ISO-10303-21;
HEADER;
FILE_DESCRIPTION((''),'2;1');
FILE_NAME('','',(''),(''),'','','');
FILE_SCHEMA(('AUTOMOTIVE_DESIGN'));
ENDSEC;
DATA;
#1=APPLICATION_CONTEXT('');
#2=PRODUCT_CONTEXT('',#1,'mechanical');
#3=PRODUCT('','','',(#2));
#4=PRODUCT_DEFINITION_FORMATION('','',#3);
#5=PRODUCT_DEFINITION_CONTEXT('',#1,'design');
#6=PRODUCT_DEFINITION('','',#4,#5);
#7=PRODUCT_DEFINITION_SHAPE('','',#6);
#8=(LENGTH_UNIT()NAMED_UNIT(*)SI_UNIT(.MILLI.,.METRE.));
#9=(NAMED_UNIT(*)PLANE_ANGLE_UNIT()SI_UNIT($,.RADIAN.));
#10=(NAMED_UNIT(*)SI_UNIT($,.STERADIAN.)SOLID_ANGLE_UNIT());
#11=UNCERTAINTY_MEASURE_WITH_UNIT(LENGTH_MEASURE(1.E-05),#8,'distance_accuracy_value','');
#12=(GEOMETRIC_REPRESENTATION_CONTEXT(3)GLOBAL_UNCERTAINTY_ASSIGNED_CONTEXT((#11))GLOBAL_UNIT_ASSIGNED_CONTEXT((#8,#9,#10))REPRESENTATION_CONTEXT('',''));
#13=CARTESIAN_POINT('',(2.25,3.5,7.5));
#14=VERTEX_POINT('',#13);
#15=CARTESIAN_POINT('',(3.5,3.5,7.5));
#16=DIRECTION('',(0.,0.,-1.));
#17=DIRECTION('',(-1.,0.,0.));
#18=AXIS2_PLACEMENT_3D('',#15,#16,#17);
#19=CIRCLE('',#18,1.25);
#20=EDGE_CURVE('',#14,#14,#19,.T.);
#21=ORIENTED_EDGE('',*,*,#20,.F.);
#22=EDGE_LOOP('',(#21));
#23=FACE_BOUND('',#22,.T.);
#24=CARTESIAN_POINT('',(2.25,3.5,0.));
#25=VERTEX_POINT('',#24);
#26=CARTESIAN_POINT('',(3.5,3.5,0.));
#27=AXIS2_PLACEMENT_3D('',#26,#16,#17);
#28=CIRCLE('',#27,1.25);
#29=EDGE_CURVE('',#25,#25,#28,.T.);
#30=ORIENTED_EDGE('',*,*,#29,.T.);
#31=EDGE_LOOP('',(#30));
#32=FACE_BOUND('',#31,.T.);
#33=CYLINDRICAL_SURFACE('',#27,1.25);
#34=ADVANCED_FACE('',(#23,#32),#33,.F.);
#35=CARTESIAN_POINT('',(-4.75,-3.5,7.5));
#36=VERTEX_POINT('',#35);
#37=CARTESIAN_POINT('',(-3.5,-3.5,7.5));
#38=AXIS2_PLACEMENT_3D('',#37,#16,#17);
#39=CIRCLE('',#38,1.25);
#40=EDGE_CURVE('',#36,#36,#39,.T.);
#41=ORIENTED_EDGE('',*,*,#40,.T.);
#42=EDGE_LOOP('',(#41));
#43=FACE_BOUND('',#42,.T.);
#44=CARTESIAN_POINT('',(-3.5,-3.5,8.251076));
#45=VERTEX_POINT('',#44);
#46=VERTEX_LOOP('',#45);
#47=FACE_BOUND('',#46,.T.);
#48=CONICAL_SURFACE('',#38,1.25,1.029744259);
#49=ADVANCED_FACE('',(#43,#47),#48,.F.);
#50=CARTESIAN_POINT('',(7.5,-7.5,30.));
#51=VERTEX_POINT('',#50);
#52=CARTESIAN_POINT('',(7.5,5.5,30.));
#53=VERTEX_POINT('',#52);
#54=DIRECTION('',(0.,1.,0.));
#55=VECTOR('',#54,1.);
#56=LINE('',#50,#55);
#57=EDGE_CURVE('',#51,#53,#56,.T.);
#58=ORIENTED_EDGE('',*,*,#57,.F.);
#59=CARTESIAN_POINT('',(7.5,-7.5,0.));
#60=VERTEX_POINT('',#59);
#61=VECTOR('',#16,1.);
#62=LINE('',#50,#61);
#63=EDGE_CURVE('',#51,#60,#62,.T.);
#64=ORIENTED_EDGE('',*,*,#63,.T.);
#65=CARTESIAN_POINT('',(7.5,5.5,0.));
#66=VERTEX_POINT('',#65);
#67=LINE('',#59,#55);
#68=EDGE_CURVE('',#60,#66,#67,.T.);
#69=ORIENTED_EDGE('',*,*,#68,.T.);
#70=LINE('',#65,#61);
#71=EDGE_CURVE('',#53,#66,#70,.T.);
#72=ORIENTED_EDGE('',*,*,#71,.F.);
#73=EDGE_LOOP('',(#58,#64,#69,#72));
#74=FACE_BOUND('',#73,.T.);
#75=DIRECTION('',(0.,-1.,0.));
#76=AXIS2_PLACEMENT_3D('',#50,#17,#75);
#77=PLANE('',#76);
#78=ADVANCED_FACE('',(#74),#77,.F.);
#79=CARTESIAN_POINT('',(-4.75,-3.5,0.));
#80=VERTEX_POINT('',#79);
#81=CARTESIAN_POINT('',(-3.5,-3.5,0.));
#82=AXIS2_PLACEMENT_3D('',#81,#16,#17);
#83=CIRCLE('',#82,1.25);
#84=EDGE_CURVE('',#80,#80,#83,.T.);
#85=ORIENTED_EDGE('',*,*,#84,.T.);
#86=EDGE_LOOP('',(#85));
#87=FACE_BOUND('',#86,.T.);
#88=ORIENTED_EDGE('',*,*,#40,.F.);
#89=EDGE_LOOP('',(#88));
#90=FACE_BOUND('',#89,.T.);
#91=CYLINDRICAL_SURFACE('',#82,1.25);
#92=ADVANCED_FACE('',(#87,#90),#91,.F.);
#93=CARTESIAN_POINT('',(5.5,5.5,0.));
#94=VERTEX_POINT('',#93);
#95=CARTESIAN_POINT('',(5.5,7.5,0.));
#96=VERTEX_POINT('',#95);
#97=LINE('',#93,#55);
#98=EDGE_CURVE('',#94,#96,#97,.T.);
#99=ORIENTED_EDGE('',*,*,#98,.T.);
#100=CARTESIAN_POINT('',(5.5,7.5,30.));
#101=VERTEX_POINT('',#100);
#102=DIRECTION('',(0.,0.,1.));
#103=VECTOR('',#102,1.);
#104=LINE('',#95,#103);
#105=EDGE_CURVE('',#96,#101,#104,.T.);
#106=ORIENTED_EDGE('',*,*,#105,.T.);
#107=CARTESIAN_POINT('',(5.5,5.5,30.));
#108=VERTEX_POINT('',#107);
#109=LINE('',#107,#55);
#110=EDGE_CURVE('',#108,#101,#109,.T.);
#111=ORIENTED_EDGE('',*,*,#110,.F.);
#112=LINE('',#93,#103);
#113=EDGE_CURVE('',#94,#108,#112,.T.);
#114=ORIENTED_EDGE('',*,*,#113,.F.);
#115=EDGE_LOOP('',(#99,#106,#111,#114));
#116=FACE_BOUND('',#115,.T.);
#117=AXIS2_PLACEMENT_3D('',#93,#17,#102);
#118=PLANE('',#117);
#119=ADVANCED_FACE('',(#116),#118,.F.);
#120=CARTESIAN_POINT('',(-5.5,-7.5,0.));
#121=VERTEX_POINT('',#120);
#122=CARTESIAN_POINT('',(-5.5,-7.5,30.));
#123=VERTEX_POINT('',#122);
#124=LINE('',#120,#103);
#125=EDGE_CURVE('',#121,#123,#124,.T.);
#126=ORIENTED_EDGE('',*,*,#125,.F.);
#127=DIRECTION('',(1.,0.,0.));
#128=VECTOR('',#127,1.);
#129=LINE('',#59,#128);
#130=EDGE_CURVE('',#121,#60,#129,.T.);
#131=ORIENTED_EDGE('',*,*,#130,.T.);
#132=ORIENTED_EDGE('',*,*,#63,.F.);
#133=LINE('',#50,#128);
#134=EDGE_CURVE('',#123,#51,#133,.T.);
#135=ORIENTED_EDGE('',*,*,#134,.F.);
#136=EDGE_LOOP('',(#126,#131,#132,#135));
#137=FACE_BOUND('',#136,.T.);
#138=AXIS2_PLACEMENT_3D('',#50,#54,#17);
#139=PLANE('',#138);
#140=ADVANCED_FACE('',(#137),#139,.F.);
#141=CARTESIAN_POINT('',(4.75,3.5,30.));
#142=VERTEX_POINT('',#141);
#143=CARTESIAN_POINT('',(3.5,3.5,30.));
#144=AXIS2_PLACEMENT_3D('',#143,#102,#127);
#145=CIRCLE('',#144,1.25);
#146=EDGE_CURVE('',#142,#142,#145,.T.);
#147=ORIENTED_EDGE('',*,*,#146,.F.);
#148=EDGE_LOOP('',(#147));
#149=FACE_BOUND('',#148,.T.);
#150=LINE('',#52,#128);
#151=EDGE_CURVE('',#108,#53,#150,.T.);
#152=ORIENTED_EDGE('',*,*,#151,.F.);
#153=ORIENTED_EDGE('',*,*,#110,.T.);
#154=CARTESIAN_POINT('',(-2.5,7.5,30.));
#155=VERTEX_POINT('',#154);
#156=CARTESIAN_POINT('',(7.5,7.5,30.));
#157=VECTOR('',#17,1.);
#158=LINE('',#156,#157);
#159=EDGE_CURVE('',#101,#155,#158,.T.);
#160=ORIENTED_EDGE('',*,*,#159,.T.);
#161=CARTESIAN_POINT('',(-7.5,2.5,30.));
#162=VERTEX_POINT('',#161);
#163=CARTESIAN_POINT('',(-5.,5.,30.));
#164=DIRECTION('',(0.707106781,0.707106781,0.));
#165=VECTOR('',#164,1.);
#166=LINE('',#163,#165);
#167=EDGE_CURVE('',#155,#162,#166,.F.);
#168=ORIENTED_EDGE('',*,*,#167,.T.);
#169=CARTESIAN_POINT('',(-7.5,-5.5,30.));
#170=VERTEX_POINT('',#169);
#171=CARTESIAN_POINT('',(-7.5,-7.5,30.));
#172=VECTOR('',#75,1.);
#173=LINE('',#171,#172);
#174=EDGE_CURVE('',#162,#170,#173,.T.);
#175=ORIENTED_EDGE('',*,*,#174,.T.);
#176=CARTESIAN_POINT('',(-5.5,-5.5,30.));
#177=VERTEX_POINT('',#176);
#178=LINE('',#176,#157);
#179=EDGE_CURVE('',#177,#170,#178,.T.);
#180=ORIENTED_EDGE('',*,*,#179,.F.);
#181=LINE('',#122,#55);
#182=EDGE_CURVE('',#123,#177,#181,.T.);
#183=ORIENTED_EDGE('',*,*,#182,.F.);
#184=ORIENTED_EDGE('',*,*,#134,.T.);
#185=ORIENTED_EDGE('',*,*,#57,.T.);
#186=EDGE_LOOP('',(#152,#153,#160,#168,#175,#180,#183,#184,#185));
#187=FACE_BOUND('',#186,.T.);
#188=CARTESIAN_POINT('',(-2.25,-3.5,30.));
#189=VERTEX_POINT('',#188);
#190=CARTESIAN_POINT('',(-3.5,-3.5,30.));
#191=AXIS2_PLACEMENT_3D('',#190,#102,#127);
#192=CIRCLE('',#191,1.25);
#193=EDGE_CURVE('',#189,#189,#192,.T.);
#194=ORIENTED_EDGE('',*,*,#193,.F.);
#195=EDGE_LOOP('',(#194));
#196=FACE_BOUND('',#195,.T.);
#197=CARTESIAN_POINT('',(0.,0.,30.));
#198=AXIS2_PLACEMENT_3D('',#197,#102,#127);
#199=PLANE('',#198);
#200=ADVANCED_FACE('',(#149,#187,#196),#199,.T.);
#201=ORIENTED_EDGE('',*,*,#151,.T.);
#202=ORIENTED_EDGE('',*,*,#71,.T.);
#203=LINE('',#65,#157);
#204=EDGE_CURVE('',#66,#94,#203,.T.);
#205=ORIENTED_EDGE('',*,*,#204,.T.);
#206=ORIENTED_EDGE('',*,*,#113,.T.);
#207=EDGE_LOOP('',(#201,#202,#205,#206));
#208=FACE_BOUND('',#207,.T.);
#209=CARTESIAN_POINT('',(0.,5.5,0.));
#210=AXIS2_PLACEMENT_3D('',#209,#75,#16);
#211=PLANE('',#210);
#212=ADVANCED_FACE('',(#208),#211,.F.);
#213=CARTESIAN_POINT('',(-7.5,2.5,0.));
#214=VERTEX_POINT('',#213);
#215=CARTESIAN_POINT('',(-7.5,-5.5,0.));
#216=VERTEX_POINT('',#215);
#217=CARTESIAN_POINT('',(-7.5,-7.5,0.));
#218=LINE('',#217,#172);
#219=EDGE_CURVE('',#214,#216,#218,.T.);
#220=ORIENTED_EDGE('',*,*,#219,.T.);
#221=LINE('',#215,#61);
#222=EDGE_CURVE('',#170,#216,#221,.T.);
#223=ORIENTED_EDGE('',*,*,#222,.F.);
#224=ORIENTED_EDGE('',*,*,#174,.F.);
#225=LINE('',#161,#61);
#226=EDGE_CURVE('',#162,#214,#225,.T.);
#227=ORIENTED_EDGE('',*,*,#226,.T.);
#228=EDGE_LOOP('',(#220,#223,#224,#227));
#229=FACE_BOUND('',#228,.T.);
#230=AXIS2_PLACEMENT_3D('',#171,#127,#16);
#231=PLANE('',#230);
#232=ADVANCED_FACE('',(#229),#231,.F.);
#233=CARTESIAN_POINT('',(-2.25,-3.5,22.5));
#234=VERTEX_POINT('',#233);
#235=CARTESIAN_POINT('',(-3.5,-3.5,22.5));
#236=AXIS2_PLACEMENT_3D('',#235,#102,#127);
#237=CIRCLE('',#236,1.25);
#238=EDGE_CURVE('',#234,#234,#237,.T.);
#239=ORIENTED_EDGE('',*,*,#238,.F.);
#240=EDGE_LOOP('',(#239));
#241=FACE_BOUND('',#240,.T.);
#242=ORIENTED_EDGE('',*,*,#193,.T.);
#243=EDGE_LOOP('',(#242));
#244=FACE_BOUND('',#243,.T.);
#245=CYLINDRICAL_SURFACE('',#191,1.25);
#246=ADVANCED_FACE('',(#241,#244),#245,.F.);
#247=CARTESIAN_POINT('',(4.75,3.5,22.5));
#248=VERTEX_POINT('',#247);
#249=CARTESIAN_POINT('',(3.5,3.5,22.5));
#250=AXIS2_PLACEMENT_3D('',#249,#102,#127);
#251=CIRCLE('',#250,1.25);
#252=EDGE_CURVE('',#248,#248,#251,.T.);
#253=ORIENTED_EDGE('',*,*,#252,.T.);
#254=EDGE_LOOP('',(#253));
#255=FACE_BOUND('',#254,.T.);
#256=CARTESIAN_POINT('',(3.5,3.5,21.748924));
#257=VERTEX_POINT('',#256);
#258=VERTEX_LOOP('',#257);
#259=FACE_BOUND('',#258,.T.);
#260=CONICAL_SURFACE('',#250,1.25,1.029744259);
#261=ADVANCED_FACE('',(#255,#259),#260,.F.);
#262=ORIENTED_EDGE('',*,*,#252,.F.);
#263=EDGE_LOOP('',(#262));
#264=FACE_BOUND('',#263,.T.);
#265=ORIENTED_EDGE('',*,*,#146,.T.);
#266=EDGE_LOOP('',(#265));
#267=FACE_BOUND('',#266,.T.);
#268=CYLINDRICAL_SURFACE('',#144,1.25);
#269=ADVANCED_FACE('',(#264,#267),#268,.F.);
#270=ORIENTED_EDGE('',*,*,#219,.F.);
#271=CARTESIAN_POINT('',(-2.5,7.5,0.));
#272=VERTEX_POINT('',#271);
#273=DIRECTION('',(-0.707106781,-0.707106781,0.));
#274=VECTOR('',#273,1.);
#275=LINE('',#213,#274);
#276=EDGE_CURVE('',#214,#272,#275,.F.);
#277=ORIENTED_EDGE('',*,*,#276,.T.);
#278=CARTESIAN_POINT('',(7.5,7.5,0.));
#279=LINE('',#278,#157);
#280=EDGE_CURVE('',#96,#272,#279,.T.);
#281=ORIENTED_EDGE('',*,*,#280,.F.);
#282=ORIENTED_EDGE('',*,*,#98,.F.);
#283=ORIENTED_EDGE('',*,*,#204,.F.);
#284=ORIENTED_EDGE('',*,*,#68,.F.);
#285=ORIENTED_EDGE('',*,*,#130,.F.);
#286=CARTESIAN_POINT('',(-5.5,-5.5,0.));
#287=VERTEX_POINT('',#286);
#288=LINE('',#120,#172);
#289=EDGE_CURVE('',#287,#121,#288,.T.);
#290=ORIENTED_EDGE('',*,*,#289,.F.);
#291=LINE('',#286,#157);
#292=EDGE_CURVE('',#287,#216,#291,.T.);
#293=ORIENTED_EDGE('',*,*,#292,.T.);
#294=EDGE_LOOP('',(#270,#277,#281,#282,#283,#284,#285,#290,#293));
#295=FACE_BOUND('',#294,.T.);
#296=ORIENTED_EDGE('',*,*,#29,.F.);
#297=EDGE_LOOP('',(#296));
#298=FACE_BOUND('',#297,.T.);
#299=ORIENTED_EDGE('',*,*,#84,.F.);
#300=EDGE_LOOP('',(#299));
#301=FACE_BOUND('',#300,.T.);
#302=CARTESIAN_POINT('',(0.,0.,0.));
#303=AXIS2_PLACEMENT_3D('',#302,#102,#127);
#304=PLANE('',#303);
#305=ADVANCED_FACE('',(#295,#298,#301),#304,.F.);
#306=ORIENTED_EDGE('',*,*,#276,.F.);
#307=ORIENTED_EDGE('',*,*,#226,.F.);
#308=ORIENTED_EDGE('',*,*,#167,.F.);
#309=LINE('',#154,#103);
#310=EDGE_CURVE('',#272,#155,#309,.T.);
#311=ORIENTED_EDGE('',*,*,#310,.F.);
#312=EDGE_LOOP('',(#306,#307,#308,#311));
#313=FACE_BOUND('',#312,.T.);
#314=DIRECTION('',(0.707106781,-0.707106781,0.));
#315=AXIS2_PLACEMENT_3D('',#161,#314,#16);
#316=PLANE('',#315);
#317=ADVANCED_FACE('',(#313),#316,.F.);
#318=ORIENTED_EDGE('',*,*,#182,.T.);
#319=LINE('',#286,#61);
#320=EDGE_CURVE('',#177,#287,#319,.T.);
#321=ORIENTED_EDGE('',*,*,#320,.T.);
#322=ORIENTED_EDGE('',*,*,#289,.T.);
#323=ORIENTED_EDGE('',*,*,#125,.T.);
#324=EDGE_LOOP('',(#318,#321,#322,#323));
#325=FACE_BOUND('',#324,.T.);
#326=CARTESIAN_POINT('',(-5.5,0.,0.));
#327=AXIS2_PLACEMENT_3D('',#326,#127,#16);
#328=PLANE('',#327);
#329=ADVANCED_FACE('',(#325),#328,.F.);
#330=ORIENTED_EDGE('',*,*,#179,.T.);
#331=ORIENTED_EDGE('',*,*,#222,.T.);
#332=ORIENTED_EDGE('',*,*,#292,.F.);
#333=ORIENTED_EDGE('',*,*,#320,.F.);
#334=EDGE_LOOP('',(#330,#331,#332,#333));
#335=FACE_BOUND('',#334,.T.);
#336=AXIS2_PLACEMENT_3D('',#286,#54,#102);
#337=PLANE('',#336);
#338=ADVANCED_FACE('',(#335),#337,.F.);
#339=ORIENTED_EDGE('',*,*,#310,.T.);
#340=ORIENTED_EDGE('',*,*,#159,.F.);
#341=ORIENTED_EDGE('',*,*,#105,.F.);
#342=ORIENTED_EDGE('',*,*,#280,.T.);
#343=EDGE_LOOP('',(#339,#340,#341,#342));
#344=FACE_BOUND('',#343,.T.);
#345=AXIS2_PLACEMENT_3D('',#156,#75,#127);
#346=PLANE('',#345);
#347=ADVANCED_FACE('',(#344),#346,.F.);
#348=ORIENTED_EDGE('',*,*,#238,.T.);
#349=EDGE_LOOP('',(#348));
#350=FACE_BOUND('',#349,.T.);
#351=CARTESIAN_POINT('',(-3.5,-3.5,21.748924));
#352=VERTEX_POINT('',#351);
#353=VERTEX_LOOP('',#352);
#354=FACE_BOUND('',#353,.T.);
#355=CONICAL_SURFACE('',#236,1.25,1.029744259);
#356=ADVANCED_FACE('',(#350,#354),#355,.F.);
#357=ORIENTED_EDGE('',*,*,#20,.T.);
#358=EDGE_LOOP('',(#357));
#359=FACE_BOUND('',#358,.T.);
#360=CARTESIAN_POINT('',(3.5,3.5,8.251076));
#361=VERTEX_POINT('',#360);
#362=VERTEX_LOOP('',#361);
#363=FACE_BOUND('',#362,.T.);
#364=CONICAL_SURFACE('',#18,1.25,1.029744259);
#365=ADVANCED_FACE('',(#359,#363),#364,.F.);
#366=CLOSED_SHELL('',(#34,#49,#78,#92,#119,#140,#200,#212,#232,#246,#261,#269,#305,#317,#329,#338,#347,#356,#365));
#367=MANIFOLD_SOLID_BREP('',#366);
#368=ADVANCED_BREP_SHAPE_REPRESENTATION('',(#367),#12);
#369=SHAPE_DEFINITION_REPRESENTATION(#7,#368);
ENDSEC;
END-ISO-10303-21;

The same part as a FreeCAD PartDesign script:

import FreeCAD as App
import Part
import Sketcher
Q = App.Units.Quantity


def edges_at(feature, points):
    """Names of the edges that pass closest to the given points."""
    edges = feature.Shape.Edges
    near = lambda p: min(range(len(edges)), key=lambda i: edges[i].distToShape(Part.Vertex(*p))[0])
    return sorted({f"Edge{near(p) + 1}" for p in points})


def add_polygon(sketch, points):
    """Adds a closed chain of lines whose ends are joined by coincident constraints."""
    first, n = sketch.GeometryCount, len(points)
    for a, b in zip(points, points[1:] + points[:1]):
        sketch.addGeometry(Part.LineSegment(App.Vector(*a, 0), App.Vector(*b, 0)), False)
    for i in range(n):
        sketch.addConstraint(Sketcher.Constraint("Coincident", first + i, 2, first + (i + 1) % n, 1))

doc = App.newDocument("Part")
params = doc.addObject("Spreadsheet::Sheet", "Params")
for row, (alias, value) in enumerate([
    ("sketch1_width", "15 mm"),
    ("pad1_length", "30 mm"),
    ("chamfer_size", "5 mm"),
    ("sketch2_height", "7.5 mm"),
    ("sketch2_width", "1.25 mm"),
    ("groove_angle", "360 deg"),
    ("linearpattern_pitch", "9.899495 mm"),
    ("sketch3_height", "7.5 mm"),
    ("sketch3_width", "1.25 mm"),
    ("groove2_angle", "360 deg"),
    ("sketch4_width", "2 mm"),
    ("sketch4_height", "30 mm"),
    ("pocket1_length", "2 mm"),
    ("sketch5_width", "2 mm"),
    ("sketch5_height", "30 mm"),
    ("pocket2_length", "2 mm"),
], start=1):
    params.set(f"A{row}", alias)
    params.set(f"B{row}", "=" + value)
    params.setAlias(f"B{row}", alias)

body = doc.addObject("PartDesign::Body", "Body")

# Sketch on XY plane
sketch1 = body.newObject("Sketcher::SketchObject", "Sketch")
sketch1.AttachmentSupport = (doc.getObject("XY_Plane"), [""])
sketch1.MapMode = "FlatFace"
add_polygon(sketch1, [(-8, 8), (-8, -8), (8, -8), (8, 8)])  # lines 0-3
sketch1.addConstraint(Sketcher.Constraint("Vertical", 0))
sketch1.addConstraint(Sketcher.Constraint("Horizontal", 1))
sketch1.addConstraint(Sketcher.Constraint("Vertical", 2))
sketch1.addConstraint(Sketcher.Constraint("Horizontal", 3))
sketch1.addConstraint(Sketcher.Constraint("Symmetric", 0, 2, 2, 2, -1, 1))
sketch1.addConstraint(Sketcher.Constraint("Equal", 3, 0))
sketch1.addConstraint(Sketcher.Constraint("DistanceX", 1, 1, 1, 2, Q("15 mm")))
sketch1.setExpression("Constraints[10]", "Params.sketch1_width")
pad1 = body.newObject("PartDesign::Pad", "Pad")
pad1.Profile = sketch1
pad1.setExpression("Length", "Params.pad1_length")
doc.recompute()

chamfer = body.newObject("PartDesign::Chamfer", "Chamfer")
chamfer.Base = (pad1, edges_at(pad1, [(-7.5, 7.5, 15)]))
chamfer.setExpression("Size", "Params.chamfer_size")

# Sketch on YZ plane
sketch2 = body.newObject("Sketcher::SketchObject", "Sketch001")
sketch2.AttachmentSupport = (doc.getObject("YZ_Plane"), [""])
sketch2.MapMode = "FlatFace"
sketch2.AttachmentOffset = App.Placement(App.Vector(0, 0, -3.5), App.Rotation())
add_polygon(sketch2, [(-3.5, 21.7), (-3.5, 30), (-4.8, 30), (-4.8, 22.5)])  # lines 0-3
sketch2.addGeometry(Part.LineSegment(App.Vector(-3.5, 30, 0), App.Vector(-3.5, 21.7, 0)), True)  # axis
sketch2.addConstraint(Sketcher.Constraint("Vertical", 0))
sketch2.addConstraint(Sketcher.Constraint("Horizontal", 1))
sketch2.addConstraint(Sketcher.Constraint("Vertical", 2))
sketch2.addConstraint(Sketcher.Constraint("Vertical", 4))
sketch2.addConstraint(Sketcher.Constraint("Coincident", 4, 1, 0, 2))
sketch2.addConstraint(Sketcher.Constraint("Equal", 0, 4))
sketch2.addConstraint(Sketcher.Constraint("Angle", 3, Q("-31 deg")))
sketch2.addConstraint(Sketcher.Constraint("DistanceY", 2, 2, 2, 1, Q("7.5 mm")))
sketch2.addConstraint(Sketcher.Constraint("DistanceY", -1, 1, 0, 2, Q("30 mm")))
sketch2.addConstraint(Sketcher.Constraint("DistanceX", 1, 2, 1, 1, Q("1.25 mm")))
sketch2.addConstraint(Sketcher.Constraint("DistanceX", 0, 2, -1, 1, Q("3.5 mm")))
sketch2.setExpression("Constraints[11]", "Params.sketch2_height")
sketch2.setExpression("Constraints[13]", "Params.sketch2_width")
groove = body.newObject("PartDesign::Groove", "Groove")
groove.Profile = sketch2
groove.ReferenceAxis = (sketch2, ["Axis0"])
groove.setExpression("Angle", "Params.groove_angle")
doc.recompute()

datumline = body.newObject("PartDesign::Line", "DatumLine")
datumline.Placement = App.Placement(App.Vector(0, 0, 0), App.Rotation(App.Vector(0, 0, 1), App.Vector(0.707106781, 0.707106781, 0)))
linearpattern = body.newObject("PartDesign::LinearPattern", "LinearPattern")
linearpattern.Originals = [groove]
linearpattern.Direction = (datumline, [""])
linearpattern.Mode = "offset"
linearpattern.setExpression("Offset", "Params.linearpattern_pitch")
linearpattern.Occurrences = 2
body.Tip = linearpattern
doc.recompute()

datumplane = body.newObject("PartDesign::Plane", "DatumPlane")
datumplane.AttachmentSupport = (doc.getObject("XY_Plane"), [""])
datumplane.MapMode = "FlatFace"
datumplane.AttachmentOffset = App.Placement(App.Vector(0, 0, 15), App.Rotation())
mirrored = body.newObject("PartDesign::Mirrored", "Mirrored")
mirrored.Originals = [groove]
mirrored.MirrorPlane = (datumplane, [""])
body.Tip = mirrored

# Sketch on YZ plane
sketch3 = body.newObject("Sketcher::SketchObject", "Sketch002")
sketch3.AttachmentSupport = (doc.getObject("YZ_Plane"), [""])
sketch3.MapMode = "FlatFace"
sketch3.AttachmentOffset = App.Placement(App.Vector(0, 0, 3.5), App.Rotation())
add_polygon(sketch3, [(3.5, 0), (3.5, 8.3), (2.2, 7.5), (2.2, 0)])  # lines 0-3
sketch3.addGeometry(Part.LineSegment(App.Vector(3.5, 8.3, 0), App.Vector(3.5, 0, 0)), True)  # axis
sketch3.addConstraint(Sketcher.Constraint("Vertical", 0))
sketch3.addConstraint(Sketcher.Constraint("Vertical", 2))
sketch3.addConstraint(Sketcher.Constraint("Horizontal", 3))
sketch3.addConstraint(Sketcher.Constraint("Vertical", 4))
sketch3.addConstraint(Sketcher.Constraint("Coincident", 4, 1, 0, 2))
sketch3.addConstraint(Sketcher.Constraint("PointOnObject", 2, 2, -1))
sketch3.addConstraint(Sketcher.Constraint("PointOnObject", 4, 2, -1))
sketch3.addConstraint(Sketcher.Constraint("Angle", 1, Q("-149 deg")))
sketch3.addConstraint(Sketcher.Constraint("DistanceY", 2, 2, 2, 1, Q("7.5 mm")))
sketch3.addConstraint(Sketcher.Constraint("DistanceX", 3, 1, 3, 2, Q("1.25 mm")))
sketch3.addConstraint(Sketcher.Constraint("DistanceX", -1, 1, 0, 2, Q("3.5 mm")))
sketch3.setExpression("Constraints[12]", "Params.sketch3_height")
sketch3.setExpression("Constraints[13]", "Params.sketch3_width")
groove2 = body.newObject("PartDesign::Groove", "Groove001")
groove2.Profile = sketch3
groove2.ReferenceAxis = (sketch3, ["Axis0"])
groove2.setExpression("Angle", "Params.groove2_angle")

# Sketch on XZ plane
sketch4 = body.newObject("Sketcher::SketchObject", "Sketch003")
sketch4.AttachmentSupport = (doc.getObject("XZ_Plane"), [""])
sketch4.MapMode = "FlatFace"
sketch4.AttachmentOffset = App.Placement(App.Vector(0, 0, -7.5), App.Rotation())
add_polygon(sketch4, [(5.5, 0), (5.5, 30), (7.5, 30), (7.5, 0)])  # lines 0-3
sketch4.addConstraint(Sketcher.Constraint("Vertical", 0))
sketch4.addConstraint(Sketcher.Constraint("Horizontal", 1))
sketch4.addConstraint(Sketcher.Constraint("Vertical", 2))
sketch4.addConstraint(Sketcher.Constraint("Horizontal", 3))
sketch4.addConstraint(Sketcher.Constraint("PointOnObject", 2, 2, -1))
sketch4.addConstraint(Sketcher.Constraint("DistanceX", 1, 1, 1, 2, Q("2 mm")))
sketch4.addConstraint(Sketcher.Constraint("DistanceY", 0, 1, 0, 2, Q("30 mm")))
sketch4.addConstraint(Sketcher.Constraint("DistanceX", -1, 1, 0, 2, Q("5.5 mm")))
sketch4.setExpression("Constraints[9]", "Params.sketch4_width")
sketch4.setExpression("Constraints[10]", "Params.sketch4_height")
pocket1 = body.newObject("PartDesign::Pocket", "Pocket")
pocket1.Profile = sketch4
pocket1.setExpression("Length", "Params.pocket1_length")
pocket1.Reversed = True

# Sketch on YZ plane
sketch5 = body.newObject("Sketcher::SketchObject", "Sketch004")
sketch5.AttachmentSupport = (doc.getObject("YZ_Plane"), [""])
sketch5.MapMode = "FlatFace"
sketch5.AttachmentOffset = App.Placement(App.Vector(0, 0, -7.5), App.Rotation())
add_polygon(sketch5, [(-5.5, 0), (-7.5, 0), (-7.5, 30), (-5.5, 30)])  # lines 0-3
sketch5.addConstraint(Sketcher.Constraint("Horizontal", 0))
sketch5.addConstraint(Sketcher.Constraint("Vertical", 1))
sketch5.addConstraint(Sketcher.Constraint("Horizontal", 2))
sketch5.addConstraint(Sketcher.Constraint("Vertical", 3))
sketch5.addConstraint(Sketcher.Constraint("PointOnObject", 0, 2, -1))
sketch5.addConstraint(Sketcher.Constraint("DistanceX", 0, 2, 0, 1, Q("2 mm")))
sketch5.addConstraint(Sketcher.Constraint("DistanceY", 1, 1, 1, 2, Q("30 mm")))
sketch5.addConstraint(Sketcher.Constraint("DistanceX", 0, 2, -1, 1, Q("7.5 mm")))
sketch5.setExpression("Constraints[9]", "Params.sketch5_width")
sketch5.setExpression("Constraints[10]", "Params.sketch5_height")
pocket2 = body.newObject("PartDesign::Pocket", "Pocket001")
pocket2.Profile = sketch5
pocket2.setExpression("Length", "Params.pocket2_length")
pocket2.Reversed = True

doc.recompute()
